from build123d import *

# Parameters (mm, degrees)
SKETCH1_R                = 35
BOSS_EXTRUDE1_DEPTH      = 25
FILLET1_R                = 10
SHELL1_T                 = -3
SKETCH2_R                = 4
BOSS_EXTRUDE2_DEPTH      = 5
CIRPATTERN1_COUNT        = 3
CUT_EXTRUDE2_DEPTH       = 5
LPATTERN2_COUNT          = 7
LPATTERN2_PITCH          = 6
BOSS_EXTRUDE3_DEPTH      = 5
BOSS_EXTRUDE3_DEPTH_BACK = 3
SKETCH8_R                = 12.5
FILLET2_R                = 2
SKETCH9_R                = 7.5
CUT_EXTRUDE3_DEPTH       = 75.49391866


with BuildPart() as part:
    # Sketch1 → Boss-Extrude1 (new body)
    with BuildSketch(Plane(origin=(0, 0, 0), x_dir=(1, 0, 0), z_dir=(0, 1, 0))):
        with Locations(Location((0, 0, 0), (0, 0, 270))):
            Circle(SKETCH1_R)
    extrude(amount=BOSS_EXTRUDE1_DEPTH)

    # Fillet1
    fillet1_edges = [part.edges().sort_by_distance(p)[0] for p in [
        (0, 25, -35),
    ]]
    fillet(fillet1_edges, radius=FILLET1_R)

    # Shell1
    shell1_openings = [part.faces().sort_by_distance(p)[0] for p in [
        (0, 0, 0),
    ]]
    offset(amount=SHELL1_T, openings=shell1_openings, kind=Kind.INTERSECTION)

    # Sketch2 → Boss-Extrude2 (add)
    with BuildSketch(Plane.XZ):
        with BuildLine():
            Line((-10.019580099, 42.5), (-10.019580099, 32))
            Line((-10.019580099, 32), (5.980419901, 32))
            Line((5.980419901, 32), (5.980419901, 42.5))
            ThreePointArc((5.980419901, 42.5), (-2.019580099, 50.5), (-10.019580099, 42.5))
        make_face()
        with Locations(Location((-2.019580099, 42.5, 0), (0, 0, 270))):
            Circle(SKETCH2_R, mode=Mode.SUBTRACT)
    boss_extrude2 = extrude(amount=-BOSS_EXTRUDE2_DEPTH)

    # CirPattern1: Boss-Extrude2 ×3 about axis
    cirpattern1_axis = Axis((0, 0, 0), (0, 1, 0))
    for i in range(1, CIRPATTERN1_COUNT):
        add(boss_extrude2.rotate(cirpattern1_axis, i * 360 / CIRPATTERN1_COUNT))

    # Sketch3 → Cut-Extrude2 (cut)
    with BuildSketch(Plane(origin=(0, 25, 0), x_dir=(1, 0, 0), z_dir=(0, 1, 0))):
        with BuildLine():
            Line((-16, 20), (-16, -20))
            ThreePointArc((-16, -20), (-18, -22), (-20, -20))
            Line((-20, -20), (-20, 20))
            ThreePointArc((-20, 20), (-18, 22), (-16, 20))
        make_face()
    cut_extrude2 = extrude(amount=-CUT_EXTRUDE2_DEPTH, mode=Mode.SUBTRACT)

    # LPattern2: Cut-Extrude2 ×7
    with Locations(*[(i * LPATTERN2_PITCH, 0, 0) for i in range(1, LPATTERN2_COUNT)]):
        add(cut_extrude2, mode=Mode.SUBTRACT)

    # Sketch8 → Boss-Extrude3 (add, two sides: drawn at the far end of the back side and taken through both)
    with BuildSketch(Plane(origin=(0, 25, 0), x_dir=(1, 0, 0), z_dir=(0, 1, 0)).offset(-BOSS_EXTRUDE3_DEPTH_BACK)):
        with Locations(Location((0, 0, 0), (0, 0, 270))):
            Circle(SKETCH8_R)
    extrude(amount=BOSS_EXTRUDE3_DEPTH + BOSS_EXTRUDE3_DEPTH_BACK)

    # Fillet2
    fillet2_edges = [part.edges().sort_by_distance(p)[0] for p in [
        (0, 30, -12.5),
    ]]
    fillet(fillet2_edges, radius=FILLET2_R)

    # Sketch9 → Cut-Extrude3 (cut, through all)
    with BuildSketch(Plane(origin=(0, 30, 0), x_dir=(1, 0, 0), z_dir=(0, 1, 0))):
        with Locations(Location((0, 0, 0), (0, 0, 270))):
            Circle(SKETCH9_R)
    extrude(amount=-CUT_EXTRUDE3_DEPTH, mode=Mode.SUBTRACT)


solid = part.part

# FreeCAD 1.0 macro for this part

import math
import FreeCAD as App
import Part
import Sketcher


def edges_at(feature, points):
    """Names of the edges that pass closest to the given points."""
    edges = feature.Shape.Edges
    near = lambda p: min(range(len(edges)), key=lambda i: edges[i].distToShape(Part.Vertex(*p))[0])
    return sorted({f"Edge{near(p) + 1}" for p in points})


def faces_at(feature, points):
    """Names of the faces that lie closest to the given points."""
    faces = feature.Shape.Faces
    near = lambda p: min(range(len(faces)), key=lambda i: faces[i].distToShape(Part.Vertex(*p))[0])
    return sorted({f"Face{near(p) + 1}" for p in points})

doc = App.newDocument("Part")
body = doc.addObject("PartDesign::Body", "Body")

# Sketch on XZ plane
sketch1 = body.newObject("Sketcher::SketchObject", "Sketch")
sketch1.AttachmentSupport = (doc.getObject("XZ_Plane"), [""])
sketch1.MapMode = "FlatFace"
sketch1.addGeometry(Part.Circle(App.Vector(0, 0, 0), App.Vector(0, 0, 1), 35), False)
sketch1.addConstraint([
    Sketcher.Constraint("Coincident", 0, 3, -1, 1),
    Sketcher.Constraint("Diameter", 0, 70.0),
])
pad1 = body.newObject("PartDesign::Pad", "Pad")
pad1.Profile = sketch1
pad1.Length = 25
pad1.Reversed = True
doc.recompute()

fillet = body.newObject("PartDesign::Fillet", "Fillet")
fillet.Base = (pad1, edges_at(pad1, [(0, 25, -35)]))
fillet.Radius = 10
doc.recompute()

thickness = body.newObject("PartDesign::Thickness", "Thickness")
thickness.Base = (fillet, faces_at(fillet, [(0, 0, 0)]))
thickness.Value = 3
thickness.Reversed = True
thickness.Join = "Intersection"

# Sketch on XZ plane
sketch2 = body.newObject("Sketcher::SketchObject", "Sketch001")
sketch2.AttachmentSupport = (doc.getObject("XZ_Plane"), [""])
sketch2.MapMode = "FlatFace"
sketch2.addGeometry([
    Part.LineSegment(App.Vector(-10.01958, 42.5, 0), App.Vector(-10.01958, 32, 0)),  # 0
    Part.LineSegment(App.Vector(-10.01958, 32, 0), App.Vector(5.98042, 32, 0)),  # 1
    Part.LineSegment(App.Vector(5.98042, 32, 0), App.Vector(5.98042, 42.5, 0)),  # 2
    Part.ArcOfCircle(Part.Circle(App.Vector(-2.01958, 42.5, 0), App.Vector(0, 0, 1), 8), math.radians(0), math.radians(180)),  # 3
    Part.Circle(App.Vector(-2.01958, 42.5, 0), App.Vector(0, 0, 1), 4),  # 4
], False)
sketch2.addConstraint([
    Sketcher.Constraint("Coincident", 0, 2, 1, 1),
    Sketcher.Constraint("Coincident", 1, 2, 2, 1),
    Sketcher.Constraint("Tangent", 2, 2, 3, 1),
    Sketcher.Constraint("Tangent", 3, 2, 0, 1),
    Sketcher.Constraint("Vertical", 0),
    Sketcher.Constraint("Horizontal", 1),
    Sketcher.Constraint("Vertical", 2),
    Sketcher.Constraint("Coincident", 4, 3, 3, 3),
    Sketcher.Constraint("Diameter", 4, 8.0),
    Sketcher.Constraint("Radius", 3, 8.0),
    Sketcher.Constraint("DistanceY", 0, 2, 0, 1, 10.5),
    Sketcher.Constraint("DistanceY", -1, 1, 0, 2, 32.0),
    Sketcher.Constraint("DistanceX", 3, 3, -1, 1, 2.01958),
])
pad2 = body.newObject("PartDesign::Pad", "Pad001")
pad2.Profile = sketch2
pad2.Length = 5
pad2.Reversed = True
doc.recompute()

polarpattern = body.newObject("PartDesign::PolarPattern", "PolarPattern")
polarpattern.Originals = [pad2]
polarpattern.Axis = (doc.getObject("Y_Axis"), [""])
polarpattern.Angle = 360
polarpattern.Occurrences = 3
body.Tip = polarpattern

# Sketch on XZ plane
sketch3 = body.newObject("Sketcher::SketchObject", "Sketch002")
sketch3.AttachmentSupport = (doc.getObject("XZ_Plane"), [""])
sketch3.MapMode = "FlatFace"
sketch3.AttachmentOffset = App.Placement(App.Vector(0, 0, -25), App.Rotation())
sketch3.addGeometry([
    Part.LineSegment(App.Vector(-16, 20, 0), App.Vector(-16, -20, 0)),
    Part.ArcOfCircle(Part.Circle(App.Vector(-18, -20, 0), App.Vector(0, 0, 1), 2), math.radians(180), math.radians(360)),
    Part.LineSegment(App.Vector(-20, -20, 0), App.Vector(-20, 20, 0)),
    Part.ArcOfCircle(Part.Circle(App.Vector(-18, 20, 0), App.Vector(0, 0, 1), 2), math.radians(0), math.radians(180)),
], False)
sketch3.addConstraint([
    Sketcher.Constraint("Tangent", 0, 2, 1, 2),
    Sketcher.Constraint("Tangent", 1, 1, 2, 1),
    Sketcher.Constraint("Tangent", 2, 2, 3, 2),
    Sketcher.Constraint("Tangent", 3, 1, 0, 1),
    Sketcher.Constraint("Vertical", 0),
    Sketcher.Constraint("Vertical", 2),
    Sketcher.Constraint("Radius", 1, 2.0),
    Sketcher.Constraint("DistanceY", 0, 2, 0, 1, 40.0),
    Sketcher.Constraint("DistanceX", 1, 3, -1, 1, 18.0),
    Sketcher.Constraint("DistanceY", 1, 3, -1, 1, 20.0),
])
pocket1 = body.newObject("PartDesign::Pocket", "Pocket")
pocket1.Profile = sketch3
pocket1.Length = 5
pocket1.Reversed = True
doc.recompute()

linearpattern = body.newObject("PartDesign::LinearPattern", "LinearPattern")
linearpattern.Originals = [pocket1]
linearpattern.Direction = (doc.getObject("X_Axis"), [""])
linearpattern.Mode = "offset"
linearpattern.Offset = 6
linearpattern.Occurrences = 7
body.Tip = linearpattern

# Sketch on XZ plane
sketch4 = body.newObject("Sketcher::SketchObject", "Sketch003")
sketch4.AttachmentSupport = (doc.getObject("XZ_Plane"), [""])
sketch4.MapMode = "FlatFace"
sketch4.AttachmentOffset = App.Placement(App.Vector(0, 0, -25), App.Rotation())
sketch4.addGeometry(Part.Circle(App.Vector(0, 0, 0), App.Vector(0, 0, 1), 12.5), False)
sketch4.addConstraint([
    Sketcher.Constraint("Coincident", 0, 3, -1, 1),
    Sketcher.Constraint("Diameter", 0, 25.0),
])
pad3 = body.newObject("PartDesign::Pad", "Pad002")
pad3.Profile = sketch4
pad3.Type = "TwoLengths"
pad3.Length = 5
pad3.Length2 = 3
pad3.Reversed = True
doc.recompute()

fillet2 = body.newObject("PartDesign::Fillet", "Fillet001")
fillet2.Base = (pad3, edges_at(pad3, [(0, 30, -12.5)]))
fillet2.Radius = 2

# Sketch on XZ plane
sketch5 = body.newObject("Sketcher::SketchObject", "Sketch004")
sketch5.AttachmentSupport = (doc.getObject("XZ_Plane"), [""])
sketch5.MapMode = "FlatFace"
sketch5.AttachmentOffset = App.Placement(App.Vector(0, 0, -30), App.Rotation())
sketch5.addGeometry(Part.Circle(App.Vector(0, 0, 0), App.Vector(0, 0, 1), 7.5), False)
sketch5.addConstraint([
    Sketcher.Constraint("Coincident", 0, 3, -1, 1),
    Sketcher.Constraint("Diameter", 0, 15.0),
])
pocket2 = body.newObject("PartDesign::Pocket", "Pocket001")
pocket2.Profile = sketch5
pocket2.Type = "ThroughAll"
pocket2.Reversed = True

doc.recompute()
